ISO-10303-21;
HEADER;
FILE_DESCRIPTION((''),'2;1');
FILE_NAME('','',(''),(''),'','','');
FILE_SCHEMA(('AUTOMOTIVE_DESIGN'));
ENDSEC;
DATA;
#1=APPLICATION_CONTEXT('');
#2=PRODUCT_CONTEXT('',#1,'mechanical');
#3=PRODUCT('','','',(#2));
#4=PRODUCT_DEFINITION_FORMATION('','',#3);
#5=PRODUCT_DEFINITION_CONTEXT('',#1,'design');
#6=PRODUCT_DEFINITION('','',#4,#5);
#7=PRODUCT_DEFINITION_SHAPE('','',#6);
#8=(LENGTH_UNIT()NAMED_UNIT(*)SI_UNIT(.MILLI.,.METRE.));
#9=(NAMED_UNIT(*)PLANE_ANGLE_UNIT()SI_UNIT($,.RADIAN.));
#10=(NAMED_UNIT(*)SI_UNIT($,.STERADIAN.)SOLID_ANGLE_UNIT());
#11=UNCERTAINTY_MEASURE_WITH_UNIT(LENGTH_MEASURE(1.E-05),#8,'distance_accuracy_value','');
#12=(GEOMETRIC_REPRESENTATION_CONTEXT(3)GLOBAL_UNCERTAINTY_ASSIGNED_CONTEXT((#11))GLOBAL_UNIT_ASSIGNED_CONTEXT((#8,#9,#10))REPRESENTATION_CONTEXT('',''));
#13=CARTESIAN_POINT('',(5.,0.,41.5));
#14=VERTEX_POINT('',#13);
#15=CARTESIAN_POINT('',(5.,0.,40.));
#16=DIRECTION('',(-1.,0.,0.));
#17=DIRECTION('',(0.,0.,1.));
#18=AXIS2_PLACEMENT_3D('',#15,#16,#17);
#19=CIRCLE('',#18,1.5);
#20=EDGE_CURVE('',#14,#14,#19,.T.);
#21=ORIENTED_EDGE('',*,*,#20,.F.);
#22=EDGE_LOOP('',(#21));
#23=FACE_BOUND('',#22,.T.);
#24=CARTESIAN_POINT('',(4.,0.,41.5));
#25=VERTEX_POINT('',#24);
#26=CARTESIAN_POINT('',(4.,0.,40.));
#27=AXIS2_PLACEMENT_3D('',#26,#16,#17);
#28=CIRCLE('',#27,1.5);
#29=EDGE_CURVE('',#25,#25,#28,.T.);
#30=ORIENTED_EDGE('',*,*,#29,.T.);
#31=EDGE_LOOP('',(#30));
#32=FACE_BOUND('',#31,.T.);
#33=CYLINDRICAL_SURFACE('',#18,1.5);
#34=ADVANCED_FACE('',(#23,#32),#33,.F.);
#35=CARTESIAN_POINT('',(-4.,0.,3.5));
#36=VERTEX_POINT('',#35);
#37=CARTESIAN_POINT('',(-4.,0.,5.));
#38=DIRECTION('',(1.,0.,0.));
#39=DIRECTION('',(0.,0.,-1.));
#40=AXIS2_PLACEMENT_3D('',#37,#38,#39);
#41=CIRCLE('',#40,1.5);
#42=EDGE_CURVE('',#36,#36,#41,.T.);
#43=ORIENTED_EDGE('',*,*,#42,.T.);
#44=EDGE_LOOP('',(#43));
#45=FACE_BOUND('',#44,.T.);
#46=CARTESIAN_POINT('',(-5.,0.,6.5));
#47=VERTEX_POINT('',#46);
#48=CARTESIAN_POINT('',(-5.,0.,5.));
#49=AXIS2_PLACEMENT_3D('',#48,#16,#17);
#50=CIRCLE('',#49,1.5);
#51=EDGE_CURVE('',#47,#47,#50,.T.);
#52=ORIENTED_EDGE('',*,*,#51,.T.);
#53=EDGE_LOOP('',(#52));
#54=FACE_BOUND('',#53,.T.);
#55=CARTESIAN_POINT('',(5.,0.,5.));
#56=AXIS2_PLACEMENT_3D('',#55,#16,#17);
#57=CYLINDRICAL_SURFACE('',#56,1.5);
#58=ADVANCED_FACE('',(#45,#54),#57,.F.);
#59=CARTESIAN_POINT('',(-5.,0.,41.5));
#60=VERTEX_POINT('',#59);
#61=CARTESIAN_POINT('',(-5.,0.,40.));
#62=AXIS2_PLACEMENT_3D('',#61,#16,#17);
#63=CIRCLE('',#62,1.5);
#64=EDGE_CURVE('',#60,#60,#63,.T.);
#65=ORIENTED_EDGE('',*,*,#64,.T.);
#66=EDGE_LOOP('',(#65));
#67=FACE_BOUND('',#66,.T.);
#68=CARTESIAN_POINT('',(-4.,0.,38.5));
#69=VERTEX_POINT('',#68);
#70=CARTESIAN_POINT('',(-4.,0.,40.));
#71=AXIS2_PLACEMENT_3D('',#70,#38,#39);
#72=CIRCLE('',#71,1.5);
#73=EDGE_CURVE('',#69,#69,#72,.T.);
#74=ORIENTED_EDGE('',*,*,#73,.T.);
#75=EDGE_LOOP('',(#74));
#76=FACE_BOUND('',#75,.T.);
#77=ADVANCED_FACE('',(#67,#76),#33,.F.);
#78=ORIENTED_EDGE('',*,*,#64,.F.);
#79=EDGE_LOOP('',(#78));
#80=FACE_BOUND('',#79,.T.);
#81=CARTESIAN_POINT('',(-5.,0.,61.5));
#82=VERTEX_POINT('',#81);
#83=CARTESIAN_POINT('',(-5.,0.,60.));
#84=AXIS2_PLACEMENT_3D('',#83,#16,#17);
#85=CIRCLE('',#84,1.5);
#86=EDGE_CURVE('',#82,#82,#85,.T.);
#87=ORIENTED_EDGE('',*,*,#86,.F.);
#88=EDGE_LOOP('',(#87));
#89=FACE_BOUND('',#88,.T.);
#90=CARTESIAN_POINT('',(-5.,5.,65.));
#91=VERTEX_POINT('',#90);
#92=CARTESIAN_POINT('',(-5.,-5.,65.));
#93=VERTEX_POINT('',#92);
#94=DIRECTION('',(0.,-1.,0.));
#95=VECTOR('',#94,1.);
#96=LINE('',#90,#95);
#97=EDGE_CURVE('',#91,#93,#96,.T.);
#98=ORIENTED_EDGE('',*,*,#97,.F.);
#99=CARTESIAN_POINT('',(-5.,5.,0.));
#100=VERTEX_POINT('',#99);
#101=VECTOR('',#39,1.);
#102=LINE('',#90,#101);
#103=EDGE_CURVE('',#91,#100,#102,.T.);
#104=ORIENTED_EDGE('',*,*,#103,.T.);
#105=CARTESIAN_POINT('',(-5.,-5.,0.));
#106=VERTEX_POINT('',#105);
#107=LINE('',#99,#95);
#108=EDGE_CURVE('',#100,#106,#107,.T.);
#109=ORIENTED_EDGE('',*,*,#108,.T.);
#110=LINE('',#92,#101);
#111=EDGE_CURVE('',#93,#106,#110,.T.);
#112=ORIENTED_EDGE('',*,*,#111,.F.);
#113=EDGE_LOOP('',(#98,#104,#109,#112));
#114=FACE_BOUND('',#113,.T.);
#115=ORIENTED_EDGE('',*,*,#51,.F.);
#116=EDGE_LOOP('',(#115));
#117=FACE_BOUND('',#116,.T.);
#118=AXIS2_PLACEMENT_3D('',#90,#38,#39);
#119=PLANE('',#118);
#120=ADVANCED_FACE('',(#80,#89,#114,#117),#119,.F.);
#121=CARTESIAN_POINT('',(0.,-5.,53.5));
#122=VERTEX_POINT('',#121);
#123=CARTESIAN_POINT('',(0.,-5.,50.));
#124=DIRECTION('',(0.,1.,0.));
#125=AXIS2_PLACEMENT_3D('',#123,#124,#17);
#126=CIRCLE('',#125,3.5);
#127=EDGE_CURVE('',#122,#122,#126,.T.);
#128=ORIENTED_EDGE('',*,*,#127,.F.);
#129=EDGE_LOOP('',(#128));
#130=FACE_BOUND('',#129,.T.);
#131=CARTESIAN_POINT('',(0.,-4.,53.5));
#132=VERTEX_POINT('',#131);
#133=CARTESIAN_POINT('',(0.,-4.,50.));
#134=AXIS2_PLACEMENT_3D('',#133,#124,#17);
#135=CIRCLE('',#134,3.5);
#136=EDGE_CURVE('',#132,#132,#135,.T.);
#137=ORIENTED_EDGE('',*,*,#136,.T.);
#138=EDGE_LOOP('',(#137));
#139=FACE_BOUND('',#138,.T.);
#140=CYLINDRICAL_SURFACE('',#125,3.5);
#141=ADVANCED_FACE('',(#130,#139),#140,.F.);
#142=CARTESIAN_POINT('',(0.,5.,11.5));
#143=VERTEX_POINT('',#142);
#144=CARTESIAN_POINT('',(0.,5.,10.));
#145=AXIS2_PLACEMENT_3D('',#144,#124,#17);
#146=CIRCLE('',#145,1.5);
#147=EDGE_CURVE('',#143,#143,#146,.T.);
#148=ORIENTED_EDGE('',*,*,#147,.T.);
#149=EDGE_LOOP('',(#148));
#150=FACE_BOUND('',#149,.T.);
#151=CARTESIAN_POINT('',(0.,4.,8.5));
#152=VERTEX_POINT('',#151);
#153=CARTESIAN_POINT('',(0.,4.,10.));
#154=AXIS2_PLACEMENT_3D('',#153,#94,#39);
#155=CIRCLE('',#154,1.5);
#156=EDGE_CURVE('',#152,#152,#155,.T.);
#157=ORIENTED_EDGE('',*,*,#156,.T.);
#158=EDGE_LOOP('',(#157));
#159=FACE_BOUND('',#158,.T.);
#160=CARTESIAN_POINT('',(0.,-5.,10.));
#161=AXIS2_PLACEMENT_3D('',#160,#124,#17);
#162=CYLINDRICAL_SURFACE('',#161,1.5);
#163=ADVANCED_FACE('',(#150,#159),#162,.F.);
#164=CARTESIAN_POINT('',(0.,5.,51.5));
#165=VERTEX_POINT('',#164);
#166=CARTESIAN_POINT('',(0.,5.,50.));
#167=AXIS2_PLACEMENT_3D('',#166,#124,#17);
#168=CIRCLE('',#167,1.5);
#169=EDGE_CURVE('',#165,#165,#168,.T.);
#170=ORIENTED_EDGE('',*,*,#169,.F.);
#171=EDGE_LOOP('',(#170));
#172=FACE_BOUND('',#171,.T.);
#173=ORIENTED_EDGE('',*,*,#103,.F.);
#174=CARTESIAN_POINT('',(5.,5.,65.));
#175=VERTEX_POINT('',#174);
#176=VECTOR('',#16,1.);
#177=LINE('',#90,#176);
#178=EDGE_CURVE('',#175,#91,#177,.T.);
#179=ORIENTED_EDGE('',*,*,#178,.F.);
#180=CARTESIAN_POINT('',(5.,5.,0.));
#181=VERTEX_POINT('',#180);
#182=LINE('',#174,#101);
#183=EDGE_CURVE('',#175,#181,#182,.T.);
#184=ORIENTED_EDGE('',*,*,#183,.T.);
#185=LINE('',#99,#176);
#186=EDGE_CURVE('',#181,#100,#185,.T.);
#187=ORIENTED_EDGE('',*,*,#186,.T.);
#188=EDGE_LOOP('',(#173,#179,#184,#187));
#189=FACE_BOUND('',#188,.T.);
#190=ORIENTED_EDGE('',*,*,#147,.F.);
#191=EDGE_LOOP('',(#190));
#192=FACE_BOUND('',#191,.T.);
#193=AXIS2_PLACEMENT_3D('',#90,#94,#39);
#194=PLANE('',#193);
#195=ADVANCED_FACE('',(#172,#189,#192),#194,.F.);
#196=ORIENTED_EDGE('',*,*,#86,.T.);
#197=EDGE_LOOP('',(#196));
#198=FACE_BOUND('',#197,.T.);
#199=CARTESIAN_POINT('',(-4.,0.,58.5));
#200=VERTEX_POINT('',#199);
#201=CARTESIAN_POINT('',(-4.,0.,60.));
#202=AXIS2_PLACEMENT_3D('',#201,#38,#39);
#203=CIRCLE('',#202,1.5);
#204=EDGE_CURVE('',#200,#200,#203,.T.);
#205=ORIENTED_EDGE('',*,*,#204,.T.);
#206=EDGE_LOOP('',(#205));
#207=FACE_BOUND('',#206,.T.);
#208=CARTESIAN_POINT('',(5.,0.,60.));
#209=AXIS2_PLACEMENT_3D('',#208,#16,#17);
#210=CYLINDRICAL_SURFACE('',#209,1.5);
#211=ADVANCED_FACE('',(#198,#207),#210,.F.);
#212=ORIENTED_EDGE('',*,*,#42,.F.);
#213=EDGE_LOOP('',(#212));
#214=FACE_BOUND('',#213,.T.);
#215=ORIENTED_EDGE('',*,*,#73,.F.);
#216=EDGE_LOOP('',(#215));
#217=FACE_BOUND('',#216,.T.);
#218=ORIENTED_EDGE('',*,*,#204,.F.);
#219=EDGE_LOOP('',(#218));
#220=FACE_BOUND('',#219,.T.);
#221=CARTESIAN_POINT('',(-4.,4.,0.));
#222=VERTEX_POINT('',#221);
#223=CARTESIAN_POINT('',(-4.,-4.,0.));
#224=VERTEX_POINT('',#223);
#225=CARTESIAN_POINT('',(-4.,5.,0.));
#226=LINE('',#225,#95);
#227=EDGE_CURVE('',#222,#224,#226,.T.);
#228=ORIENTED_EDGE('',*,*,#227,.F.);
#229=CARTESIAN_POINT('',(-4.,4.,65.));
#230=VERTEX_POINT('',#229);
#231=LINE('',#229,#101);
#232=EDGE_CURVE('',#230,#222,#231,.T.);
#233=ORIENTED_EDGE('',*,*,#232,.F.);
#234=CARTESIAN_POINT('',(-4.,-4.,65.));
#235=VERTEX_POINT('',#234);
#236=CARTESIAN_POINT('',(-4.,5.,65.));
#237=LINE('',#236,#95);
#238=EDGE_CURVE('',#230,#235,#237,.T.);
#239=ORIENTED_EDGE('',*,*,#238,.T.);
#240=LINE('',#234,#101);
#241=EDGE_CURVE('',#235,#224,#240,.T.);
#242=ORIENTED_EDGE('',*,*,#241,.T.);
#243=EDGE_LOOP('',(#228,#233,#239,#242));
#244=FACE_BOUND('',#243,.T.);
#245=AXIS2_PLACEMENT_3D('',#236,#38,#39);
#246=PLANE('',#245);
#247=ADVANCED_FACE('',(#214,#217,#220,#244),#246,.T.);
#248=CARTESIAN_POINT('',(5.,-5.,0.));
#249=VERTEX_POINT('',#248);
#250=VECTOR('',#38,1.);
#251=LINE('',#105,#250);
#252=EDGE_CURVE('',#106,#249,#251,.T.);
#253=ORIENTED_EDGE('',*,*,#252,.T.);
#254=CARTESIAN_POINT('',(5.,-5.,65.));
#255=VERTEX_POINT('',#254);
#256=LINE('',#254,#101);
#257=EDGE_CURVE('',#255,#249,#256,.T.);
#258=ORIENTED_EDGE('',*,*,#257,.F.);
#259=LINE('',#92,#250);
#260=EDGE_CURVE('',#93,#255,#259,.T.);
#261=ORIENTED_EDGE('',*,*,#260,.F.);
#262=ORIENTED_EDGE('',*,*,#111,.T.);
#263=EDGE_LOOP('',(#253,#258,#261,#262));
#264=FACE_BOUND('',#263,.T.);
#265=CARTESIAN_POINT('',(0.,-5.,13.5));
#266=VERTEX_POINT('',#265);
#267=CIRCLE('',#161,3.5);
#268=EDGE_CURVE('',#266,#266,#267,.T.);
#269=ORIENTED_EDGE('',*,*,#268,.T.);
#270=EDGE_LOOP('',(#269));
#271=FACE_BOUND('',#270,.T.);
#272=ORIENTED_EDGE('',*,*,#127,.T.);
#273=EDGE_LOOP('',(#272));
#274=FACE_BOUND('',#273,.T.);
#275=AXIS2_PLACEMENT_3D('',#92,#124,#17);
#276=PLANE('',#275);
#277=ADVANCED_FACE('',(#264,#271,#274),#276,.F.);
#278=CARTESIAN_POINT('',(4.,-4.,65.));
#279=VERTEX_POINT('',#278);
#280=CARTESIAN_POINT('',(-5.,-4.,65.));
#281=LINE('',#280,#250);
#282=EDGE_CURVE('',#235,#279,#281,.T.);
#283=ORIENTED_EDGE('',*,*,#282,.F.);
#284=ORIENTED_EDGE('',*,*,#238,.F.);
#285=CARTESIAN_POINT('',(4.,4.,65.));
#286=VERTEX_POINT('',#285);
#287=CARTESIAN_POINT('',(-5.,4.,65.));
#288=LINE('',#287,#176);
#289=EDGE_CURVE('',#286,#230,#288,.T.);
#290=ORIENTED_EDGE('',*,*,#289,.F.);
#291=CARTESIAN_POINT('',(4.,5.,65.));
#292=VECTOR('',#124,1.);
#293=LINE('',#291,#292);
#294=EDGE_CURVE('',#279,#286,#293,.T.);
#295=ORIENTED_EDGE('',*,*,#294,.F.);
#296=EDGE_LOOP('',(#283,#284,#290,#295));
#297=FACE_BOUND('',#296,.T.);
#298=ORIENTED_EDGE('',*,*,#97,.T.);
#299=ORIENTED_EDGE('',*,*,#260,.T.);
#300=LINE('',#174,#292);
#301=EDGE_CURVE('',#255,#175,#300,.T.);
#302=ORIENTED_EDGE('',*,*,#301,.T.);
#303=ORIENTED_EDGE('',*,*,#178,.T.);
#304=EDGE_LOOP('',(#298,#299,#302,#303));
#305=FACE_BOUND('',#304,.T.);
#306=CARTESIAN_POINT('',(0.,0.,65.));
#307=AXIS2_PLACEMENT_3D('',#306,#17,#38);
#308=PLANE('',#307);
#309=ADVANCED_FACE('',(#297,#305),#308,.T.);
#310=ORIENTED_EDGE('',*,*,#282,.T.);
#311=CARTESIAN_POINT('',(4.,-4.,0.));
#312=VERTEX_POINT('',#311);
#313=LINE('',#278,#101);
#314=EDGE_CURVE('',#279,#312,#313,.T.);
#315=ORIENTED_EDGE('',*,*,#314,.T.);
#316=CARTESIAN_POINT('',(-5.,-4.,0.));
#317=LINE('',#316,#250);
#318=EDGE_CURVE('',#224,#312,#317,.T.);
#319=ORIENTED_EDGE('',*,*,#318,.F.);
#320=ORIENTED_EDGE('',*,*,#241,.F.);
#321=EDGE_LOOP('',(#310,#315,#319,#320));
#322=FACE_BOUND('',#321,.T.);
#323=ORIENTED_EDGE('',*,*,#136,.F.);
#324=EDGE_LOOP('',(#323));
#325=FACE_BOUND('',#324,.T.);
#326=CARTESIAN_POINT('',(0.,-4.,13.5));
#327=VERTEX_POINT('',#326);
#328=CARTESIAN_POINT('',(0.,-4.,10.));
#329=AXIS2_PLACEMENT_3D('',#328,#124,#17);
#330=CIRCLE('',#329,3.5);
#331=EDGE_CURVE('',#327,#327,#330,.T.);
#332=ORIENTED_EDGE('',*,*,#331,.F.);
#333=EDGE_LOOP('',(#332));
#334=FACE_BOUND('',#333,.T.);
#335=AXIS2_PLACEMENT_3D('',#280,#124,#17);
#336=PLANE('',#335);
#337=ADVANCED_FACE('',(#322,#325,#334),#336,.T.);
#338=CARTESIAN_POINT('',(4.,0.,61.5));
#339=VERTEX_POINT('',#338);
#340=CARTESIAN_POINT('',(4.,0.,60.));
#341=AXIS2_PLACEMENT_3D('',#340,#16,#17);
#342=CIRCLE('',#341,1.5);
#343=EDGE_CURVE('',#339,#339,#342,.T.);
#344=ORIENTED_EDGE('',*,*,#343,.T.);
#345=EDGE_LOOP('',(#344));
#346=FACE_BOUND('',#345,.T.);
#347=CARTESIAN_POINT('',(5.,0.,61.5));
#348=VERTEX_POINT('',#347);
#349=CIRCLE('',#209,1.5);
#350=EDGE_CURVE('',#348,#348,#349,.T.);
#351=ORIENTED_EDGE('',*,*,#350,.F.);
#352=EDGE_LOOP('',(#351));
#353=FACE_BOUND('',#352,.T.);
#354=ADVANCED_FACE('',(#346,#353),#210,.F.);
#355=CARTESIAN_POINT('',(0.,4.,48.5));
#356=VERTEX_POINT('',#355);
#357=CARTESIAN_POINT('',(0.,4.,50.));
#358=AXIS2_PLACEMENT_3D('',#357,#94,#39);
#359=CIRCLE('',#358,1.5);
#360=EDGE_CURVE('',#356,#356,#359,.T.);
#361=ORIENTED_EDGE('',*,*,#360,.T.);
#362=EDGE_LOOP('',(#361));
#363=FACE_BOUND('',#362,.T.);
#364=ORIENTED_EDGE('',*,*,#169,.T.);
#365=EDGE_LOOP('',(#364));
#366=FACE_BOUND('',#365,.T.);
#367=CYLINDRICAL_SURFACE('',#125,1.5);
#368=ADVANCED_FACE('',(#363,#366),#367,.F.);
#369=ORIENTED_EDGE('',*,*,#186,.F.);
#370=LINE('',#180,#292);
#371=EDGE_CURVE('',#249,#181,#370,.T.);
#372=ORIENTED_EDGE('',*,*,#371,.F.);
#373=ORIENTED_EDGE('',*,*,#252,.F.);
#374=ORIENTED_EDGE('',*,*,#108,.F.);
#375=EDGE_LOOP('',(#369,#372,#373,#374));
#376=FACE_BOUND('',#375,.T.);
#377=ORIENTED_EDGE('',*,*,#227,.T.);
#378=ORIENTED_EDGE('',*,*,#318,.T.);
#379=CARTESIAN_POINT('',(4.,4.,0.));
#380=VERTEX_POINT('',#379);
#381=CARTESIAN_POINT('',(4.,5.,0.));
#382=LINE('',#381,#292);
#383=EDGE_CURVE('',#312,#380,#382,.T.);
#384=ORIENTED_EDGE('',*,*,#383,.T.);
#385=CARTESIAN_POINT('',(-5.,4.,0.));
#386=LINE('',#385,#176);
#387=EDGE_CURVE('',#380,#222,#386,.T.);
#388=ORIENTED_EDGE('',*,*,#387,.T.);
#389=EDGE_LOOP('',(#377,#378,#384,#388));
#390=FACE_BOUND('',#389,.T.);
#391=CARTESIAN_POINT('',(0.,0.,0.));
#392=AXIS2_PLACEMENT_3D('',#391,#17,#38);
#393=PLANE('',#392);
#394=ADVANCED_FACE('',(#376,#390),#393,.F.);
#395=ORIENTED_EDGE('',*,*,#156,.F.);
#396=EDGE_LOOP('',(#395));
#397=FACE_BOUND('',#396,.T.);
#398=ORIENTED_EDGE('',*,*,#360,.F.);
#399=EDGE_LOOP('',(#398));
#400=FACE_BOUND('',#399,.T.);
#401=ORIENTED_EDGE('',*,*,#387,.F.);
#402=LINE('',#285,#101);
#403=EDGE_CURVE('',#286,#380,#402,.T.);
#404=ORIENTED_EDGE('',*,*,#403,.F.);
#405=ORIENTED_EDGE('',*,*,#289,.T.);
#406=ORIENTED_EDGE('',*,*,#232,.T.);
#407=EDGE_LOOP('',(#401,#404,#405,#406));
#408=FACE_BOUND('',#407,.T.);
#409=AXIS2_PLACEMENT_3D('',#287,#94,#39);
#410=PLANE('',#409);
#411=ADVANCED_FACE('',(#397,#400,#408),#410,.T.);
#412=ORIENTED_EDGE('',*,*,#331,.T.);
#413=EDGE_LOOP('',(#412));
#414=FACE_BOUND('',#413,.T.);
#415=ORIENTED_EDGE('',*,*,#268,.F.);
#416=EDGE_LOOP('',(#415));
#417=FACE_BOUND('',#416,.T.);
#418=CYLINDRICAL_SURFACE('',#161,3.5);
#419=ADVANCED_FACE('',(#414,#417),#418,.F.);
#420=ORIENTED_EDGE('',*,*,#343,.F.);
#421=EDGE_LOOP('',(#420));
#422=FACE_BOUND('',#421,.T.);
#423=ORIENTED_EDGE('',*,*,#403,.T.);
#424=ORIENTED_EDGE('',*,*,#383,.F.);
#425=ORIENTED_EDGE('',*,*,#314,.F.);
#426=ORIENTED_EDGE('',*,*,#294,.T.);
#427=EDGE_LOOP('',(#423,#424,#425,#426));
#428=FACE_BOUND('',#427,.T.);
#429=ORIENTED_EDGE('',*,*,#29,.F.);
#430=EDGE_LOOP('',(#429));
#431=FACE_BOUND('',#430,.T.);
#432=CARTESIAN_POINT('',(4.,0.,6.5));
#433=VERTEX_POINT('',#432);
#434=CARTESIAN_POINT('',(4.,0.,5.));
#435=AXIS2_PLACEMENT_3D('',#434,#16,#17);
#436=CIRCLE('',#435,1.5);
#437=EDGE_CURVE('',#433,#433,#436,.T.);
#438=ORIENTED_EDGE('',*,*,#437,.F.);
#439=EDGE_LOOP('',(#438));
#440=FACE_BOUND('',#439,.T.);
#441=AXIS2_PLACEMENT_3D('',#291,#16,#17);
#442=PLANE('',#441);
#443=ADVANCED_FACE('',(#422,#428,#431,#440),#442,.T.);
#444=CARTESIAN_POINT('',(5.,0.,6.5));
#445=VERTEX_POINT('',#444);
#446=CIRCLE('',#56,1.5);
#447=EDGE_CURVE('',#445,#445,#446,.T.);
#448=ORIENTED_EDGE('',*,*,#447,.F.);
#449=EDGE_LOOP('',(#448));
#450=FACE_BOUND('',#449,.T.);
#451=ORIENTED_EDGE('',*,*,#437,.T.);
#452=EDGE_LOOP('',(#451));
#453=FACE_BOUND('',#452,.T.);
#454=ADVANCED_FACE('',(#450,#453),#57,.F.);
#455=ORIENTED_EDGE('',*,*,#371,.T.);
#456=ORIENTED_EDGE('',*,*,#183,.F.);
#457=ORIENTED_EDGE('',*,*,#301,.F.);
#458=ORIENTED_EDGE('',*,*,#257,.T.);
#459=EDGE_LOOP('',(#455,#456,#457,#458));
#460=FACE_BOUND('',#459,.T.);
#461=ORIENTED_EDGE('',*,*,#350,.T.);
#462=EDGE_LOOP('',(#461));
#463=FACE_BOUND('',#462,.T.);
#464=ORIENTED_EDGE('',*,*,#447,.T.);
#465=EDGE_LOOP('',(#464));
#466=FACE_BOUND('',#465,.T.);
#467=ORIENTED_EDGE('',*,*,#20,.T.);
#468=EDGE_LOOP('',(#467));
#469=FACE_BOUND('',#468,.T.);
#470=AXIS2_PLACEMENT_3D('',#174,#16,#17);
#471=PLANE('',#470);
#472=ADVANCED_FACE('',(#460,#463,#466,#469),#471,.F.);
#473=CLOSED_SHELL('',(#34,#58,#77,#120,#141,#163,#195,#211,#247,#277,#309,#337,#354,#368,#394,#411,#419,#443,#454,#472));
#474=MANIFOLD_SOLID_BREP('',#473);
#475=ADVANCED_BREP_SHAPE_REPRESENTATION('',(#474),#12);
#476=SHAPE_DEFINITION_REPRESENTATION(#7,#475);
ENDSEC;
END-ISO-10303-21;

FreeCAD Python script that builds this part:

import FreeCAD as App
import Part
import Sketcher

V = App.Vector

doc = App.newDocument("Part")
body = doc.addObject("PartDesign::Body", "Body")

# Sketch on XY plane
sketch1 = body.newObject("Sketcher::SketchObject", "Sketch")
sketch1.AttachmentSupport = (doc.getObject("XY_Plane"), [""])
sketch1.MapMode = "FlatFace"
sketch1.addGeometry([
    Part.LineSegment(V(-5, 5, 0), V(-5, -5, 0)),  # 0
    Part.LineSegment(V(-5, -5, 0), V(5, -5, 0)),  # 1
    Part.LineSegment(V(5, -5, 0), V(5, 5, 0)),  # 2
    Part.LineSegment(V(5, 5, 0), V(-5, 5, 0)),  # 3
    Part.LineSegment(V(4, -4, 0), V(-4, -4, 0)),  # 4
    Part.LineSegment(V(-4, -4, 0), V(-4, 4, 0)),  # 5
    Part.LineSegment(V(-4, 4, 0), V(4, 4, 0)),  # 6
    Part.LineSegment(V(4, 4, 0), V(4, -4, 0)),  # 7
], False)
sketch1.addConstraint([
    Sketcher.Constraint("Coincident", 0, 2, 1, 1),
    Sketcher.Constraint("Coincident", 1, 2, 2, 1),
    Sketcher.Constraint("Coincident", 2, 2, 3, 1),
    Sketcher.Constraint("Coincident", 3, 2, 0, 1),
    Sketcher.Constraint("Coincident", 4, 2, 5, 1),
    Sketcher.Constraint("Coincident", 5, 2, 6, 1),
    Sketcher.Constraint("Coincident", 6, 2, 7, 1),
    Sketcher.Constraint("Coincident", 7, 2, 4, 1),
    Sketcher.Constraint("Vertical", 0),
    Sketcher.Constraint("Horizontal", 1),
    Sketcher.Constraint("Vertical", 2),
    Sketcher.Constraint("Horizontal", 3),
    Sketcher.Constraint("Horizontal", 4),
    Sketcher.Constraint("Vertical", 5),
    Sketcher.Constraint("Horizontal", 6),
    Sketcher.Constraint("Vertical", 7),
    Sketcher.Constraint("Symmetric", 0, 2, 2, 2, -1, 1),
    Sketcher.Constraint("Symmetric", 4, 2, 6, 2, -1, 1),
    Sketcher.Constraint("Equal", 3, 0),
    Sketcher.Constraint("Equal", 6, 5),
    Sketcher.Constraint("DistanceX", 1, 1, 1, 2, 10.0),
    Sketcher.Constraint("DistanceX", 4, 2, 4, 1, 8.0),
])
pad1 = body.newObject("PartDesign::Pad", "Pad")
pad1.Profile = sketch1
pad1.Length = 65

# Sketch on YZ plane
sketch2 = body.newObject("Sketcher::SketchObject", "Sketch001")
sketch2.AttachmentSupport = (doc.getObject("YZ_Plane"), [""])
sketch2.MapMode = "FlatFace"
sketch2.AttachmentOffset = App.Placement(V(0, 0, -5), App.Rotation())
sketch2.addGeometry([
    Part.Circle(V(0, 40, 0), V(0, 0, 1), 1.5),
    Part.Circle(V(0, 60, 0), V(0, 0, 1), 1.5),
    Part.Circle(V(0, 5, 0), V(0, 0, 1), 1.5),
], False)
sketch2.addConstraint([
    Sketcher.Constraint("Equal", 0, 1),
    Sketcher.Constraint("Equal", 1, 2),
    Sketcher.Constraint("PointOnObject", 0, 3, -2),
    Sketcher.Constraint("PointOnObject", 1, 3, -2),
    Sketcher.Constraint("PointOnObject", 2, 3, -2),
    Sketcher.Constraint("Diameter", 0, 3.0),
    Sketcher.Constraint("DistanceY", -1, 1, 0, 3, 40.0),
    Sketcher.Constraint("DistanceY", -1, 1, 1, 3, 60.0),
    Sketcher.Constraint("DistanceY", -1, 1, 2, 3, 5.0),
])
pocket1 = body.newObject("PartDesign::Pocket", "Pocket")
pocket1.Profile = sketch2
pocket1.Type = "ThroughAll"
pocket1.Reversed = True

# Sketch on XZ plane
sketch3 = body.newObject("Sketcher::SketchObject", "Sketch002")
sketch3.AttachmentSupport = (doc.getObject("XZ_Plane"), [""])
sketch3.MapMode = "FlatFace"
sketch3.AttachmentOffset = App.Placement(V(0, 0, -5), App.Rotation())
sketch3.addGeometry([
    Part.Circle(V(0, 10, 0), V(0, 0, 1), 1.5),
    Part.Circle(V(0, 50, 0), V(0, 0, 1), 1.5),
], False)
sketch3.addConstraint([
    Sketcher.Constraint("Equal", 0, 1),
    Sketcher.Constraint("PointOnObject", 0, 3, -2),
    Sketcher.Constraint("PointOnObject", 1, 3, -2),
    Sketcher.Constraint("Diameter", 0, 3.0),
    Sketcher.Constraint("DistanceY", -1, 1, 0, 3, 10.0),
    Sketcher.Constraint("DistanceY", -1, 1, 1, 3, 50.0),
])
pocket2 = body.newObject("PartDesign::Pocket", "Pocket001")
pocket2.Profile = sketch3
pocket2.Type = "ThroughAll"
pocket2.Reversed = True

# Sketch on XZ plane
sketch4 = body.newObject("Sketcher::SketchObject", "Sketch003")
sketch4.AttachmentSupport = (doc.getObject("XZ_Plane"), [""])
sketch4.MapMode = "FlatFace"
sketch4.addGeometry([
    Part.Circle(V(0, 10, 0), V(0, 0, 1), 3.5),
    Part.Circle(V(0, 50, 0), V(0, 0, 1), 3.5),
], False)
sketch4.addConstraint([
    Sketcher.Constraint("Equal", 0, 1),
    Sketcher.Constraint("PointOnObject", 0, 3, -2),
    Sketcher.Constraint("PointOnObject", 1, 3, -2),
    Sketcher.Constraint("Diameter", 0, 7.0),
    Sketcher.Constraint("DistanceY", -1, 1, 0, 3, 10.0),
    Sketcher.Constraint("DistanceY", -1, 1, 1, 3, 50.0),
])
pocket3 = body.newObject("PartDesign::Pocket", "Pocket002")
pocket3.Profile = sketch4
pocket3.Length = 5
pocket3.Reversed = True

doc.recompute()
